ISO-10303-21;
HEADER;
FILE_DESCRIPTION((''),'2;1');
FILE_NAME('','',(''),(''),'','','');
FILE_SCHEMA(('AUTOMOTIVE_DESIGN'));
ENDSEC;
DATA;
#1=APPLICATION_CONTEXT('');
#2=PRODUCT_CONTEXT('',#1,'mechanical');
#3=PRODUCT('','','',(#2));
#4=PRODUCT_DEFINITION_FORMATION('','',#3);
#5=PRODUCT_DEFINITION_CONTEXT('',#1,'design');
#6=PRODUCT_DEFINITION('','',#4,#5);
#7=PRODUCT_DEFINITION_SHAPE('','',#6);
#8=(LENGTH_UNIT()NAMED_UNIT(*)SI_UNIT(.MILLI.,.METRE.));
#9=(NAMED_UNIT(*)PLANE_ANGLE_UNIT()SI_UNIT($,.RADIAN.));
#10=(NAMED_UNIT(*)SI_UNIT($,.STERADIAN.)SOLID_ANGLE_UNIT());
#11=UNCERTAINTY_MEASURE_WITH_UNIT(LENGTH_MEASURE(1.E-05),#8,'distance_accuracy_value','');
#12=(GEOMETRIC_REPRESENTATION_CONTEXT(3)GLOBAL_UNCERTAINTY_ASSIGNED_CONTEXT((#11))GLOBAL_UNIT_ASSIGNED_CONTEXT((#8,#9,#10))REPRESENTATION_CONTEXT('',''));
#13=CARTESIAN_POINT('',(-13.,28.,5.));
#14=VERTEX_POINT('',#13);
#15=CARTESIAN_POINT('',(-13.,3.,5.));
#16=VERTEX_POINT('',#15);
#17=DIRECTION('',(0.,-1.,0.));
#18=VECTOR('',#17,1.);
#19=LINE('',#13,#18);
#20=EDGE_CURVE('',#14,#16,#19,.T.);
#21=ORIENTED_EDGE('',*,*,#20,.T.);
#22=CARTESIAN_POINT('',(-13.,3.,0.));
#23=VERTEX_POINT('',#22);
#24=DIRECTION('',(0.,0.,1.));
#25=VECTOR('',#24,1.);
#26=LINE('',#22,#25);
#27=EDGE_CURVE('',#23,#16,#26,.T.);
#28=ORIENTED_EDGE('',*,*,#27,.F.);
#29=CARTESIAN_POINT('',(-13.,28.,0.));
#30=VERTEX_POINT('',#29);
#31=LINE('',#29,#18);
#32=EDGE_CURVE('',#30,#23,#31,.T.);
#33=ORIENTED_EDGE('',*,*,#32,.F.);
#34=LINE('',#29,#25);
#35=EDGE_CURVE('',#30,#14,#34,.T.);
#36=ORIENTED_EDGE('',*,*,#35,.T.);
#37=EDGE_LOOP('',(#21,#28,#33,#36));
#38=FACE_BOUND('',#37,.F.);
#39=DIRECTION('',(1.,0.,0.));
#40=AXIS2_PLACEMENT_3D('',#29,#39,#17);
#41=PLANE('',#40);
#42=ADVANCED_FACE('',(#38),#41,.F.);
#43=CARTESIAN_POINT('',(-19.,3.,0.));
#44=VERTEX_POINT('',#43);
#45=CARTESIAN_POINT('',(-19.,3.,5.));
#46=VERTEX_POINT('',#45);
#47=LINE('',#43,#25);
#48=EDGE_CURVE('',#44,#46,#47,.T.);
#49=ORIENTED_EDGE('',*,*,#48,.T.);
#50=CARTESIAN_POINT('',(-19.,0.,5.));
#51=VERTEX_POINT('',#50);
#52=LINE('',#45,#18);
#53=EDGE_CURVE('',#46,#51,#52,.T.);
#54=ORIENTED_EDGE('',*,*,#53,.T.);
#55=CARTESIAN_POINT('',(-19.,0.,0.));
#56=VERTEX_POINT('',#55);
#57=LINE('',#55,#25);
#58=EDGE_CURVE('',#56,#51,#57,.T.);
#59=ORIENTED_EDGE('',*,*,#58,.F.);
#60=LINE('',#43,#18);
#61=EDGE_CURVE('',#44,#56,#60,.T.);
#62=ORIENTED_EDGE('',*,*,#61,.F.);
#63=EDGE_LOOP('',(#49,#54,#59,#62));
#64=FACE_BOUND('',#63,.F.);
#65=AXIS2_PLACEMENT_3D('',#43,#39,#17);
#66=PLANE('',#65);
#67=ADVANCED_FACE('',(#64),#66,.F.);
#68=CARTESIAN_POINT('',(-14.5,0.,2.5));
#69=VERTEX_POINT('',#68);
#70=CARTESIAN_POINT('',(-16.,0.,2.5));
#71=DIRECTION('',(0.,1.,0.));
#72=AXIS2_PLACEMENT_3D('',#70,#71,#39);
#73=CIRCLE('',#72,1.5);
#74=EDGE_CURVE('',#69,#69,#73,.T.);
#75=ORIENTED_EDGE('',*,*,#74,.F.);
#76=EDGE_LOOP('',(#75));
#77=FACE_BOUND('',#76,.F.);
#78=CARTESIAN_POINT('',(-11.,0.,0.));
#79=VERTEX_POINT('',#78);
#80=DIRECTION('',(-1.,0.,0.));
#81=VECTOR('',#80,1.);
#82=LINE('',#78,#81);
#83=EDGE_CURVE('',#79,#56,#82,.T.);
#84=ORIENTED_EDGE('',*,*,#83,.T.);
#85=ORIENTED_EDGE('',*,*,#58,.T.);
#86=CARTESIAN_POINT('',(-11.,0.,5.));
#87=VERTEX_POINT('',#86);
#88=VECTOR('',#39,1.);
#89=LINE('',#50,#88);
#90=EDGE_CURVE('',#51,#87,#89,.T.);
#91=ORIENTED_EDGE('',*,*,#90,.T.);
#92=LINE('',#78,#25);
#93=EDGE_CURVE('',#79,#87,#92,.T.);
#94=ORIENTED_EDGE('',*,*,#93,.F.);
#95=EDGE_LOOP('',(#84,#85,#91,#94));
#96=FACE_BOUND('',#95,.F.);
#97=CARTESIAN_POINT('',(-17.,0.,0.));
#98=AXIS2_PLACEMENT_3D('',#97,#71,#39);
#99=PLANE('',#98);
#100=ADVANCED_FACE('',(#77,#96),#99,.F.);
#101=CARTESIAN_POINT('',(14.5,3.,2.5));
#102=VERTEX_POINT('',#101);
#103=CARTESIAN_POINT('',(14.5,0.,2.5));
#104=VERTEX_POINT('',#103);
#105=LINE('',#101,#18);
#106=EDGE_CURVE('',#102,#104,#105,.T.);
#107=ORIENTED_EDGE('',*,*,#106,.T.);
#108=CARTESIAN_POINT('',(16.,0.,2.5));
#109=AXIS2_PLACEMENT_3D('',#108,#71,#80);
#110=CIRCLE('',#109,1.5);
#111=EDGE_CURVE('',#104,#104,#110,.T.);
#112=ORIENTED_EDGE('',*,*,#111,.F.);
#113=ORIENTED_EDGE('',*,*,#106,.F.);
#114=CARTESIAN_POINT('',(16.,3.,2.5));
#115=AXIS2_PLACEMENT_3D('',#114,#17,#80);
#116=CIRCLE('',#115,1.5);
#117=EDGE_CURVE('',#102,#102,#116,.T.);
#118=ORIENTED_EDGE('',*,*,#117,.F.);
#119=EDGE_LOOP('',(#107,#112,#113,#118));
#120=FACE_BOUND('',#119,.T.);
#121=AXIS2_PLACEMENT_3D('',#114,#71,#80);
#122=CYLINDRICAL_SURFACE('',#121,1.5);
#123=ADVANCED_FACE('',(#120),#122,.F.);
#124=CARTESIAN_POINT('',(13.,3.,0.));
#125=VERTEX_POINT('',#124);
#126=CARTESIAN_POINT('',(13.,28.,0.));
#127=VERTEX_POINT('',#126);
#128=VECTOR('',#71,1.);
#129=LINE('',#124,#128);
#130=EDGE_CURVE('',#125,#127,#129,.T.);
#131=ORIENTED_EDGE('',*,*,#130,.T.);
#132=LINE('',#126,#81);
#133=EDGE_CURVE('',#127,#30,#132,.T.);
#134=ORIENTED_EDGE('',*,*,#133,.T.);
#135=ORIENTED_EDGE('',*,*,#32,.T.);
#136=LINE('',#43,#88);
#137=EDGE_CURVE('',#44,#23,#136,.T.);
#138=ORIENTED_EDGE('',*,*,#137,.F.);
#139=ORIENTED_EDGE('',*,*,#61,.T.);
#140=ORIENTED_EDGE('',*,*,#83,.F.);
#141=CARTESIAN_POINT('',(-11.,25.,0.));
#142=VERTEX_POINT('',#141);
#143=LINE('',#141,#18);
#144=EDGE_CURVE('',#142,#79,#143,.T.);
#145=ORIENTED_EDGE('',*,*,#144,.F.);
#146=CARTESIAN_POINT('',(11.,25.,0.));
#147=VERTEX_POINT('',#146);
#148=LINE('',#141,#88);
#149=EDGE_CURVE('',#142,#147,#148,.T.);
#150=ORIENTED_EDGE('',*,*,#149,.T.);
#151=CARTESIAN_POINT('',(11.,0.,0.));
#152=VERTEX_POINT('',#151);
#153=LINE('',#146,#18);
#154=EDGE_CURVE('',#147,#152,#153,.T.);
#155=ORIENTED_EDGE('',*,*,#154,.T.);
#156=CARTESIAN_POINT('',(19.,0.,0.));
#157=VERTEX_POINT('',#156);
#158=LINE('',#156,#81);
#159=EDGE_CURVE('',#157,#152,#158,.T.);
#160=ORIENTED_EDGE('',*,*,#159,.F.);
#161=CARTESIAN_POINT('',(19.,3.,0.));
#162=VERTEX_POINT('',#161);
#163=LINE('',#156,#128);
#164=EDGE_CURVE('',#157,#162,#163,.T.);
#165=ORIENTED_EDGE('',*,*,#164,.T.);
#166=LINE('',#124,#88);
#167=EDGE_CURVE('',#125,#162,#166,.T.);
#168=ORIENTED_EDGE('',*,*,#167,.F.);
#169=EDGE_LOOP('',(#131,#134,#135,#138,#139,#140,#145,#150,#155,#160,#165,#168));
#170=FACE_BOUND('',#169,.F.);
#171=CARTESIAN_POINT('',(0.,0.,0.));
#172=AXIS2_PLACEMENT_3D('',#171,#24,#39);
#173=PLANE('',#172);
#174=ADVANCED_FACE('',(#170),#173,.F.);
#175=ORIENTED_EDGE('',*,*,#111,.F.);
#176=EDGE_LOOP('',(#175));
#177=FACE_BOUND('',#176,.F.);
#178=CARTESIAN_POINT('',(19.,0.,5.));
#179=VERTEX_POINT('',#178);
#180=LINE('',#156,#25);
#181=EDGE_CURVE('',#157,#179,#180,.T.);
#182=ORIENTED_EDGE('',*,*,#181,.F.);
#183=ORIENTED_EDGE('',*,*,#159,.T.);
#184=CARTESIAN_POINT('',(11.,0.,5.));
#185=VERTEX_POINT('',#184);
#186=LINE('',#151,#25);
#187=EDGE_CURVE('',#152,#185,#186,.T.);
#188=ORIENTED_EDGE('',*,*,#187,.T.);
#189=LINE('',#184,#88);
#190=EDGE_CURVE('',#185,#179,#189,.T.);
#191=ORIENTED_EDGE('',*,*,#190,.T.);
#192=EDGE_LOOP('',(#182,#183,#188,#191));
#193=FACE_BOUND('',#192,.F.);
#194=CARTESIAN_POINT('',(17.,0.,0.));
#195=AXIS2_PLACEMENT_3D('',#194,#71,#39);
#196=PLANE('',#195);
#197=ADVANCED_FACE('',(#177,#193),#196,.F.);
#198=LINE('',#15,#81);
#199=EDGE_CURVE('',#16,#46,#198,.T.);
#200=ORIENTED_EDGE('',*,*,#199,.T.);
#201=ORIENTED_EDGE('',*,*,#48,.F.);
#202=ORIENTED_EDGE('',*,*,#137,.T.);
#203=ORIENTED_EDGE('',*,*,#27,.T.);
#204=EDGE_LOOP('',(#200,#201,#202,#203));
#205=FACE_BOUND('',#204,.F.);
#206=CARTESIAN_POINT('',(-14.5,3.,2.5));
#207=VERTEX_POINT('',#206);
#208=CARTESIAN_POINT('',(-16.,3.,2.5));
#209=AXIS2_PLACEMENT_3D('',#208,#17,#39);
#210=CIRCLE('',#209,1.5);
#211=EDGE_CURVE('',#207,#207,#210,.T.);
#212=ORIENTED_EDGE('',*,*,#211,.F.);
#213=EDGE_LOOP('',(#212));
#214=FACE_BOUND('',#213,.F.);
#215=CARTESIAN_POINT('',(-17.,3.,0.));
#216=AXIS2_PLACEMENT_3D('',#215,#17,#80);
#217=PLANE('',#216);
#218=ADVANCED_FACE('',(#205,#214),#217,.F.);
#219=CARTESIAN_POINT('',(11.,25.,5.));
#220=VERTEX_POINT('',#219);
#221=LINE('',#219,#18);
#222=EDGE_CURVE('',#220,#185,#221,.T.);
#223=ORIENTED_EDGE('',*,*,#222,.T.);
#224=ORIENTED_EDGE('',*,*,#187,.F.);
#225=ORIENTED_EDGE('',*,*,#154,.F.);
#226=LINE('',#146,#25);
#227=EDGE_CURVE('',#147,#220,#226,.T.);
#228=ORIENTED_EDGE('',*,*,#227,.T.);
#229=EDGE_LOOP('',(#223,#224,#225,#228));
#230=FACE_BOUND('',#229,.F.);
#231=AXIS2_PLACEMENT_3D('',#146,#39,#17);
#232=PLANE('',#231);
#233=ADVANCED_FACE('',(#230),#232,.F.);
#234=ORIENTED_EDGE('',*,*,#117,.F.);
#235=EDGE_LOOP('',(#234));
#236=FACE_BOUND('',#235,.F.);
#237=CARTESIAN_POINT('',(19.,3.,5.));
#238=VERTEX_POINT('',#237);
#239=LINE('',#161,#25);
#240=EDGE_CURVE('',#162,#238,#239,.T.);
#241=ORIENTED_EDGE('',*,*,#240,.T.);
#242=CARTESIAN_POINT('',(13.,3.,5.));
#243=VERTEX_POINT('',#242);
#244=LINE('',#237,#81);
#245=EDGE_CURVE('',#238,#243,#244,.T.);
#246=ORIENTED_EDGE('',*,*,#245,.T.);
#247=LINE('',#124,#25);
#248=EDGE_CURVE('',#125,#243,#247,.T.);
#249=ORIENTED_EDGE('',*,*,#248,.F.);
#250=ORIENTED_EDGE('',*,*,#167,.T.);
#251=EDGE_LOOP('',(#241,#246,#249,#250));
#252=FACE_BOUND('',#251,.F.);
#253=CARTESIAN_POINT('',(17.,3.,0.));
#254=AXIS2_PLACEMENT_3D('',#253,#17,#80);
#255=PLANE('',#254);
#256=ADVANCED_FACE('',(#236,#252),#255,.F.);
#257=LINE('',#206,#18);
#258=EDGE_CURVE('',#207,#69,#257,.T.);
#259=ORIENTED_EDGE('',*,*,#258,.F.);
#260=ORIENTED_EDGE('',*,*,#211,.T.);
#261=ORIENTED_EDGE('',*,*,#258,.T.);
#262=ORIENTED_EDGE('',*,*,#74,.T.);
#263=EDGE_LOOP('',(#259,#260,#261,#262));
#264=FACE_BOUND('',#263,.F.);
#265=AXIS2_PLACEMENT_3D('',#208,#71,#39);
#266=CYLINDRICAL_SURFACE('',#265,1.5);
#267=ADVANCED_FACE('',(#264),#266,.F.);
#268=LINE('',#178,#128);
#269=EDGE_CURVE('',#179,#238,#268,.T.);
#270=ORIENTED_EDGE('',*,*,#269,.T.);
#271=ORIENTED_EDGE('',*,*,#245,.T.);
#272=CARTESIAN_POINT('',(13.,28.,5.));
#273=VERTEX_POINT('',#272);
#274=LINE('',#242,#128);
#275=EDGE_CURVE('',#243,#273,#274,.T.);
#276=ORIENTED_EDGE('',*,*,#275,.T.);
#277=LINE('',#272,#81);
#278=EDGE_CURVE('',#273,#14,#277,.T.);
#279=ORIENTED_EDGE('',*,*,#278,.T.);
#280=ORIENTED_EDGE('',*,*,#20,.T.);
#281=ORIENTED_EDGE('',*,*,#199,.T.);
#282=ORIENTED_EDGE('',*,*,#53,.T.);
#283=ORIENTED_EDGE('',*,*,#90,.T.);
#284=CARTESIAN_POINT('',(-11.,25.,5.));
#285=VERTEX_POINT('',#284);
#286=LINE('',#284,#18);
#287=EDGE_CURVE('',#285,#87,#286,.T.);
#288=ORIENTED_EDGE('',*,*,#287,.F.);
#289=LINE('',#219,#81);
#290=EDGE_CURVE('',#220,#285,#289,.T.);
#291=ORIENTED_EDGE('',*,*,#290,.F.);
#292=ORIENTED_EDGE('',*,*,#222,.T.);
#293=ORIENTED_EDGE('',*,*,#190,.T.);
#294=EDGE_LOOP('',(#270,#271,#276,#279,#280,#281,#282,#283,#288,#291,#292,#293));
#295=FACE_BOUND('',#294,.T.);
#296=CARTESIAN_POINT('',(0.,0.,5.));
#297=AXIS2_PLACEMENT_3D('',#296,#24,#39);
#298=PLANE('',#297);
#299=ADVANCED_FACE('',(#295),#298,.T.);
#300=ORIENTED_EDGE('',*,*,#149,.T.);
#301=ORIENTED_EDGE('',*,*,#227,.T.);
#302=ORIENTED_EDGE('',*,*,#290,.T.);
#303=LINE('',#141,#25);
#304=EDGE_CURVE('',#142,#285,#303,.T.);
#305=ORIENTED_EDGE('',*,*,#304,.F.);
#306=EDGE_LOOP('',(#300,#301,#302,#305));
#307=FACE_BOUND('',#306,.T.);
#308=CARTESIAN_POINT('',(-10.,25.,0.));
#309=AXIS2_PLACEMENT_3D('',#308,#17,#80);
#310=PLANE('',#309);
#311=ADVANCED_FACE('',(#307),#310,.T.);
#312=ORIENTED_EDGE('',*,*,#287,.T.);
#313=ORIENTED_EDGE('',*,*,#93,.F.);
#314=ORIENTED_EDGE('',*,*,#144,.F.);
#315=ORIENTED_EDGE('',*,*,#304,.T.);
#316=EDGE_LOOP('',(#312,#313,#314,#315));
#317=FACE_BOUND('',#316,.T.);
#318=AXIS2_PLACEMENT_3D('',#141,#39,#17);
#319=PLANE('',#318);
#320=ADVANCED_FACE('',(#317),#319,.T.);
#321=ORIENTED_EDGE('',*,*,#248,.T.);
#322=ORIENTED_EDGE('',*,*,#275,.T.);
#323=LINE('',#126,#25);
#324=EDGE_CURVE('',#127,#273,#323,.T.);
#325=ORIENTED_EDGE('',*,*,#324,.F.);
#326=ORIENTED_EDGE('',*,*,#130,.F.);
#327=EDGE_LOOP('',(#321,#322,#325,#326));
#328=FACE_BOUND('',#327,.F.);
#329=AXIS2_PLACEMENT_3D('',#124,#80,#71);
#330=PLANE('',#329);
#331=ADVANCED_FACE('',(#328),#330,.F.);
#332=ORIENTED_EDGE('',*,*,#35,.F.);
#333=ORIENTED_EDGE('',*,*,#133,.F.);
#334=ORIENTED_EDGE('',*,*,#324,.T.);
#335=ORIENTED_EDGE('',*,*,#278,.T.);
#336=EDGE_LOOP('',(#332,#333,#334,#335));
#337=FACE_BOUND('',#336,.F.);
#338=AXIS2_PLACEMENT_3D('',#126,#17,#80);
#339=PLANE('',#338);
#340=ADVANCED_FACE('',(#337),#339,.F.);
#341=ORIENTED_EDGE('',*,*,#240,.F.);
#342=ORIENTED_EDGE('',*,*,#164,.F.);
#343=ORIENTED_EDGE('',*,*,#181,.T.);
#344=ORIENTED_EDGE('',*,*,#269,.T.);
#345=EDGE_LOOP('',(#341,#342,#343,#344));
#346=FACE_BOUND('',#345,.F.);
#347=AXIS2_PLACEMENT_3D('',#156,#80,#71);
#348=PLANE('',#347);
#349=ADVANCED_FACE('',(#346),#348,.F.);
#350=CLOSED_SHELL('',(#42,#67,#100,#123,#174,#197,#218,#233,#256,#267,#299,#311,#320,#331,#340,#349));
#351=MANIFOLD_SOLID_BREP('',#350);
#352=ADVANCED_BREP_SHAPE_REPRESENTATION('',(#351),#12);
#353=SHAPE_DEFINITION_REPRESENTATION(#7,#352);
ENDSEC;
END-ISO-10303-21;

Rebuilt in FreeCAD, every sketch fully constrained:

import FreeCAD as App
import Part
import Sketcher
from FreeCAD import Vector
Q = App.Units.Quantity

doc = App.newDocument("Part")
params = doc.addObject("Spreadsheet::Sheet", "Params")
for row, (alias, value) in enumerate([
    ("sketch1_height", "3 mm"),
    ("sketch1_width", "22 mm"),
    ("sketch1_width2", "8 mm"),
    ("sketch1_width3", "6 mm"),
    ("sketch1_height2", "25 mm"),
    ("pad1_length", "5 mm"),
    ("sketch2_diameter", "3 mm"),
], start=1):
    params.set(f"A{row}", alias)
    params.set(f"B{row}", "=" + value)
    params.setAlias(f"B{row}", alias)

body = doc.addObject("PartDesign::Body", "Body")

# Sketch on XY plane
sketch1 = body.newObject("Sketcher::SketchObject", "Sketch")
sketch1.AttachmentSupport = (doc.getObject("XY_Plane"), [""])
sketch1.MapMode = "FlatFace"
sketch1.addGeometry(Part.LineSegment(Vector(-11, 25, 0), Vector(11, 25, 0)), False)
sketch1.addGeometry(Part.LineSegment(Vector(11, 25, 0), Vector(11, 0, 0)), False)
sketch1.addGeometry(Part.LineSegment(Vector(11, 0, 0), Vector(19, 0, 0)), False)
sketch1.addGeometry(Part.LineSegment(Vector(19, 0, 0), Vector(19, 3, 0)), False)
sketch1.addGeometry(Part.LineSegment(Vector(19, 3, 0), Vector(13, 3, 0)), False)
sketch1.addGeometry(Part.LineSegment(Vector(13, 3, 0), Vector(13, 28, 0)), False)
sketch1.addGeometry(Part.LineSegment(Vector(13, 28, 0), Vector(-13, 28, 0)), False)
sketch1.addGeometry(Part.LineSegment(Vector(-13, 28, 0), Vector(-13, 3, 0)), False)
sketch1.addGeometry(Part.LineSegment(Vector(-13, 3, 0), Vector(-19, 3, 0)), False)
sketch1.addGeometry(Part.LineSegment(Vector(-19, 3, 0), Vector(-19, 0, 0)), False)
sketch1.addGeometry(Part.LineSegment(Vector(-19, 0, 0), Vector(-11, 0, 0)), False)
sketch1.addGeometry(Part.LineSegment(Vector(-11, 0, 0), Vector(-11, 25, 0)), False)
sketch1.addConstraint(Sketcher.Constraint("Coincident", 0, 2, 1, 1))
sketch1.addConstraint(Sketcher.Constraint("Coincident", 1, 2, 2, 1))
sketch1.addConstraint(Sketcher.Constraint("Coincident", 2, 2, 3, 1))
sketch1.addConstraint(Sketcher.Constraint("Coincident", 3, 2, 4, 1))
sketch1.addConstraint(Sketcher.Constraint("Coincident", 4, 2, 5, 1))
sketch1.addConstraint(Sketcher.Constraint("Coincident", 5, 2, 6, 1))
sketch1.addConstraint(Sketcher.Constraint("Coincident", 6, 2, 7, 1))
sketch1.addConstraint(Sketcher.Constraint("Coincident", 7, 2, 8, 1))
sketch1.addConstraint(Sketcher.Constraint("Coincident", 8, 2, 9, 1))
sketch1.addConstraint(Sketcher.Constraint("Coincident", 9, 2, 10, 1))
sketch1.addConstraint(Sketcher.Constraint("Coincident", 10, 2, 11, 1))
sketch1.addConstraint(Sketcher.Constraint("Coincident", 11, 2, 0, 1))
sketch1.addConstraint(Sketcher.Constraint("Horizontal", 0))
sketch1.addConstraint(Sketcher.Constraint("Vertical", 1))
sketch1.addConstraint(Sketcher.Constraint("Horizontal", 2))
sketch1.addConstraint(Sketcher.Constraint("Vertical", 3))
sketch1.addConstraint(Sketcher.Constraint("Horizontal", 4))
sketch1.addConstraint(Sketcher.Constraint("Vertical", 5))
sketch1.addConstraint(Sketcher.Constraint("Horizontal", 6))
sketch1.addConstraint(Sketcher.Constraint("Vertical", 7))
sketch1.addConstraint(Sketcher.Constraint("Horizontal", 8))
sketch1.addConstraint(Sketcher.Constraint("Vertical", 9))
sketch1.addConstraint(Sketcher.Constraint("Horizontal", 10))
sketch1.addConstraint(Sketcher.Constraint("Vertical", 11))
sketch1.addConstraint(Sketcher.Constraint("Symmetric", 2, 2, 9, 2, -1, 1))
sketch1.addConstraint(Sketcher.Constraint("Symmetric", 4, 2, 7, 2, -2))
sketch1.addConstraint(Sketcher.Constraint("Symmetric", 1, 2, 10, 2, -2))
sketch1.addConstraint(Sketcher.Constraint("Equal", 1, 5))
sketch1.addConstraint(Sketcher.Constraint("DistanceY", 3, 1, 3, 2, Q("3 mm")))
sketch1.addConstraint(Sketcher.Constraint("DistanceX", 0, 1, 0, 2, Q("22 mm")))
sketch1.addConstraint(Sketcher.Constraint("DistanceX", 2, 1, 2, 2, Q("8 mm")))
sketch1.addConstraint(Sketcher.Constraint("DistanceX", 4, 2, 4, 1, Q("6 mm")))
sketch1.addConstraint(Sketcher.Constraint("DistanceY", 1, 2, 1, 1, Q("25 mm")))
sketch1.setExpression("Constraints[28]", "Params.sketch1_height")
sketch1.setExpression("Constraints[29]", "Params.sketch1_width")
sketch1.setExpression("Constraints[30]", "Params.sketch1_width2")
sketch1.setExpression("Constraints[31]", "Params.sketch1_width3")
sketch1.setExpression("Constraints[32]", "Params.sketch1_height2")
pad1 = body.newObject("PartDesign::Pad", "Pad")
pad1.Profile = sketch1
pad1.setExpression("Length", "Params.pad1_length")

# Sketch on XZ plane
sketch2 = body.newObject("Sketcher::SketchObject", "Sketch001")
sketch2.AttachmentSupport = (doc.getObject("XZ_Plane"), [""])
sketch2.MapMode = "FlatFace"
sketch2.AttachmentOffset = App.Placement(Vector(0, 0, -3), App.Rotation())
sketch2.addGeometry(Part.Circle(Vector(-16, 2.5, 0), Vector(0, 0, 1), 1.5), False)
sketch2.addConstraint(Sketcher.Constraint("Diameter", 0, Q("3 mm")))
sketch2.addConstraint(Sketcher.Constraint("DistanceX", 0, 3, -1, 1, Q("16 mm")))
sketch2.addConstraint(Sketcher.Constraint("DistanceY", -1, 1, 0, 3, Q("2.5 mm")))
sketch2.setExpression("Constraints[0]", "Params.sketch2_diameter")
pocket1 = body.newObject("PartDesign::Pocket", "Pocket")
pocket1.Profile = sketch2
pocket1.Type = "UpToFirst"
pocket1.Reversed = True
doc.recompute()

mirrored = body.newObject("PartDesign::Mirrored", "Mirrored")
mirrored.Originals = [pocket1]
mirrored.MirrorPlane = (doc.getObject("YZ_Plane"), [""])
body.Tip = mirrored

doc.recompute()
